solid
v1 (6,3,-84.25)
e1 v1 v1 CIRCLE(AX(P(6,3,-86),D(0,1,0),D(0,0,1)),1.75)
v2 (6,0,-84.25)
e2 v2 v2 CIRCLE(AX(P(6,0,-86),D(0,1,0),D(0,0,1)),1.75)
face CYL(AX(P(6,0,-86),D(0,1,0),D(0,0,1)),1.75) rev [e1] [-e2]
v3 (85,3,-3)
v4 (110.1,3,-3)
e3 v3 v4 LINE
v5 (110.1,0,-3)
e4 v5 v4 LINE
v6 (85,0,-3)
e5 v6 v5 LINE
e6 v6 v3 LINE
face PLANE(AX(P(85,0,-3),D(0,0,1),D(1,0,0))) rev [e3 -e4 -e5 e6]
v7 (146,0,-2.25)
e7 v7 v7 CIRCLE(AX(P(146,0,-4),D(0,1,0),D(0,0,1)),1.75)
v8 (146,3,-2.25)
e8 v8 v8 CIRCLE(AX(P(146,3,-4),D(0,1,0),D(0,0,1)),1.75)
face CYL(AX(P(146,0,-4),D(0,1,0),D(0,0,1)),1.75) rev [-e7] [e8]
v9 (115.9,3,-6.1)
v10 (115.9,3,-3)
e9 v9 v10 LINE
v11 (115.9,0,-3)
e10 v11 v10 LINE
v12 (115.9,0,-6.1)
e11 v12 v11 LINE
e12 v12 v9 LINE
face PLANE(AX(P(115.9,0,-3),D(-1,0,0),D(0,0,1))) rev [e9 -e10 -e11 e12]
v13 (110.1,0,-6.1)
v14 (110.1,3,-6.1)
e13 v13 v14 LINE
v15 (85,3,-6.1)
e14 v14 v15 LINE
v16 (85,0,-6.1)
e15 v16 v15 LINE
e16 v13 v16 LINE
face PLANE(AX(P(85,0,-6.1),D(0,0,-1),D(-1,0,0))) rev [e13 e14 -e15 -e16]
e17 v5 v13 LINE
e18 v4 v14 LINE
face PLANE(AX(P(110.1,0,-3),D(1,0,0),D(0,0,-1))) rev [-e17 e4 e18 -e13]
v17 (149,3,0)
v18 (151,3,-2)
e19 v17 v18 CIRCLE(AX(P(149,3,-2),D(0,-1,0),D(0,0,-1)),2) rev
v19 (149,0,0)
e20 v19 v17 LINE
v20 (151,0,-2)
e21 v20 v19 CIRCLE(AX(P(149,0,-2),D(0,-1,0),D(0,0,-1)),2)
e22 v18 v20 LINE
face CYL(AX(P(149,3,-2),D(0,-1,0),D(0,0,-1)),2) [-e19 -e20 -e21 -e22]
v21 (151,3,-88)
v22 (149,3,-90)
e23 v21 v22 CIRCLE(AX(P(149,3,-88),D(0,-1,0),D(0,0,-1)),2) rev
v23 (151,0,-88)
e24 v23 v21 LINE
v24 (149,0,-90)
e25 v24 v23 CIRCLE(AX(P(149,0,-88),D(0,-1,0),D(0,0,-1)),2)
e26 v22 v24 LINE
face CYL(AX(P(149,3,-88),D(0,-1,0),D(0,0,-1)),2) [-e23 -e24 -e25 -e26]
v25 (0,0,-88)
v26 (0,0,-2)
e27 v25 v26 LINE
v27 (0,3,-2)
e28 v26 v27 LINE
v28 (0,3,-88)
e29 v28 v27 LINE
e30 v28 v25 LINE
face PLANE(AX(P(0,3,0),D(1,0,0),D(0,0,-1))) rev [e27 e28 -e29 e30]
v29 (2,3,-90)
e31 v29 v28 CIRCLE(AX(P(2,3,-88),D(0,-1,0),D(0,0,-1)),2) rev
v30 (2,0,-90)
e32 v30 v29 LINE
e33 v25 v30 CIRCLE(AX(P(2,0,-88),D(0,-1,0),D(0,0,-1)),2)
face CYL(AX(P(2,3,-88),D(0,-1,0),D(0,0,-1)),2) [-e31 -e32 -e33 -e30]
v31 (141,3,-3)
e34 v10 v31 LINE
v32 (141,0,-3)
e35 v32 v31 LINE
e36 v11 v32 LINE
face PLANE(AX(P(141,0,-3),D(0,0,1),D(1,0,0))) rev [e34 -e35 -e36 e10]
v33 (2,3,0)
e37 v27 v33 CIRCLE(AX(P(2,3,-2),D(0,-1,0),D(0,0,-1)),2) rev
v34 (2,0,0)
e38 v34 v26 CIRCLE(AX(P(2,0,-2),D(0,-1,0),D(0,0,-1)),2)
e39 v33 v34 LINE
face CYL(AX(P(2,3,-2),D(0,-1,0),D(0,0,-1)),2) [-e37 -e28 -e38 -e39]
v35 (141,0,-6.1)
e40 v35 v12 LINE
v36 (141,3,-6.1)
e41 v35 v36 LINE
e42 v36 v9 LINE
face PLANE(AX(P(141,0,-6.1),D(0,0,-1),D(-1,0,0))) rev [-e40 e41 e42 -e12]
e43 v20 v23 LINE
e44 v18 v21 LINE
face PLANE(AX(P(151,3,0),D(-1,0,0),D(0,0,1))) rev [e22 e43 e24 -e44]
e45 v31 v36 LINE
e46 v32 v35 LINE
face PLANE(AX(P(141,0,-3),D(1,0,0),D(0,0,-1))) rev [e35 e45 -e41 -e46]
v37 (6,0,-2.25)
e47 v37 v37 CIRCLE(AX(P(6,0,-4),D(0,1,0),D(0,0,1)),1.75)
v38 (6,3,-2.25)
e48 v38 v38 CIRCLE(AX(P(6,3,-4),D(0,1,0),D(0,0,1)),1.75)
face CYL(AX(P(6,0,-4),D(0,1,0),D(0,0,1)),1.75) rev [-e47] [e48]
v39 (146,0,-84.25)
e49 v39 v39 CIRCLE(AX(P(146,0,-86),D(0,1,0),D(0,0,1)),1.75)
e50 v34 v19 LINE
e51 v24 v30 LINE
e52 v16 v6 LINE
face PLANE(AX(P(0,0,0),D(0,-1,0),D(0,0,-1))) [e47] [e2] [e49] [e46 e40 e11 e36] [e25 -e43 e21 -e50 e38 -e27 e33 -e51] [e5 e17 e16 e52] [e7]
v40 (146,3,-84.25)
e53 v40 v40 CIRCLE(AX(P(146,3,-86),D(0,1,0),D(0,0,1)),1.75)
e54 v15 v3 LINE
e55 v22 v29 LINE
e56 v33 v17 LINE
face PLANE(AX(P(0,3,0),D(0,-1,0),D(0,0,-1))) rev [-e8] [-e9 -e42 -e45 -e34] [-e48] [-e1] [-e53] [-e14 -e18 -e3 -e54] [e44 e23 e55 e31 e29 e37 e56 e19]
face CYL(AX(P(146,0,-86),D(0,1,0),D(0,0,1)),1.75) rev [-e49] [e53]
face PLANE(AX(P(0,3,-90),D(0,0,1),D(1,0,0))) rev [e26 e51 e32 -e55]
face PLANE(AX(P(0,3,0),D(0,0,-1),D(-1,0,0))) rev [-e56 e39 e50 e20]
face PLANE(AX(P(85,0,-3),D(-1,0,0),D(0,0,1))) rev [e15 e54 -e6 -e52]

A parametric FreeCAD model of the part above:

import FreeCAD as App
import Part
import Sketcher

V = App.Vector


def edges_at(feature, points):
    """Names of the edges that pass closest to the given points."""
    edges = feature.Shape.Edges
    near = lambda p: min(range(len(edges)), key=lambda i: edges[i].distToShape(Part.Vertex(*p))[0])
    return sorted({f"Edge{near(p) + 1}" for p in points})


def add_polygon(sketch, points):
    """Adds a closed chain of lines whose ends are joined by coincident constraints."""
    first, n = sketch.GeometryCount, len(points)
    for a, b in zip(points, points[1:] + points[:1]):
        sketch.addGeometry(Part.LineSegment(App.Vector(*a, 0), App.Vector(*b, 0)), False)
    for i in range(n):
        sketch.addConstraint(Sketcher.Constraint("Coincident", first + i, 2, first + (i + 1) % n, 1))

doc = App.newDocument("Part")
body = doc.addObject("PartDesign::Body", "Body")

sketch1 = body.newObject("Sketcher::SketchObject", "Sketch")
sketch1.AttachmentSupport = (doc.getObject("XZ_Plane"), [""])
sketch1.MapMode = "FlatFace"
add_polygon(sketch1, [(0, -90), (0, 0), (151, 0), (151, -90)])
sketch1.addConstraint(Sketcher.Constraint("Vertical", 0))
sketch1.addConstraint(Sketcher.Constraint("Horizontal", 1))
sketch1.addConstraint(Sketcher.Constraint("Vertical", 2))
sketch1.addConstraint(Sketcher.Constraint("Horizontal", 3))
sketch1.addConstraint(Sketcher.Constraint("Coincident", 0, 2, -1, 1))
sketch1.addConstraint(Sketcher.Constraint("DistanceX", 1, 1, 1, 2, 151.0))
sketch1.addConstraint(Sketcher.Constraint("DistanceY", 0, 1, 0, 2, 90.0))
pad1 = body.newObject("PartDesign::Pad", "Pad")
pad1.Profile = sketch1
pad1.Length = 3
pad1.Reversed = True

sketch2 = body.newObject("Sketcher::SketchObject", "Sketch001")
sketch2.AttachmentSupport = (doc.getObject("XZ_Plane"), [""])
sketch2.MapMode = "FlatFace"
sketch2.AttachmentOffset = App.Placement(V(0, 0, -3), App.Rotation())
sketch2.addGeometry(Part.Circle(V(146, -86, 0), V(0, 0, 1), 1.75), False)
sketch2.addGeometry(Part.Circle(V(146, -4, 0), V(0, 0, 1), 1.75), False)
sketch2.addGeometry(Part.Circle(V(6, -86, 0), V(0, 0, 1), 1.75), False)
sketch2.addGeometry(Part.Circle(V(6, -4, 0), V(0, 0, 1), 1.75), False)
sketch2.addConstraint(Sketcher.Constraint("Equal", 0, 1))
sketch2.addConstraint(Sketcher.Constraint("Equal", 1, 2))
sketch2.addConstraint(Sketcher.Constraint("Equal", 2, 3))
sketch2.addConstraint(Sketcher.Constraint("Horizontal", 0, 3, 2, 3))
sketch2.addConstraint(Sketcher.Constraint("Horizontal", 1, 3, 3, 3))
sketch2.addConstraint(Sketcher.Constraint("Vertical", 0, 3, 1, 3))
sketch2.addConstraint(Sketcher.Constraint("Vertical", 2, 3, 3, 3))
sketch2.addConstraint(Sketcher.Constraint("Diameter", 0, 3.5))
sketch2.addConstraint(Sketcher.Constraint("DistanceX", -1, 1, 0, 3, 146.0))
sketch2.addConstraint(Sketcher.Constraint("DistanceY", 0, 3, -1, 1, 86.0))
sketch2.addConstraint(Sketcher.Constraint("DistanceY", 1, 3, -1, 1, 4.0))
sketch2.addConstraint(Sketcher.Constraint("DistanceX", -1, 1, 2, 3, 6.0))
pocket1 = body.newObject("PartDesign::Pocket", "Pocket")
pocket1.Profile = sketch2
pocket1.Type = "ThroughAll"
pocket1.Reversed = True
doc.recompute()

fillet = body.newObject("PartDesign::Fillet", "Fillet")
fillet.Base = (pocket1, edges_at(pocket1, [
    (0, 1.5, -90),
    (151, 1.5, -90),
    (151, 1.5, 0),
    (0, 1.5, 0),
]))
fillet.Radius = 2

sketch3 = body.newObject("Sketcher::SketchObject", "Sketch002")
sketch3.AttachmentSupport = (doc.getObject("XZ_Plane"), [""])
sketch3.MapMode = "FlatFace"
sketch3.AttachmentOffset = App.Placement(V(0, 0, -3), App.Rotation())
add_polygon(sketch3, [(85, -6.1), (85, -3), (110.1, -3), (110.1, -6.1)])
add_polygon(sketch3, [(115.9, -6.1), (115.9, -3), (141, -3), (141, -6.1)])
sketch3.addConstraint(Sketcher.Constraint("Vertical", 0))
sketch3.addConstraint(Sketcher.Constraint("Horizontal", 1))
sketch3.addConstraint(Sketcher.Constraint("Vertical", 2))
sketch3.addConstraint(Sketcher.Constraint("Horizontal", 3))
sketch3.addConstraint(Sketcher.Constraint("Vertical", 4))
sketch3.addConstraint(Sketcher.Constraint("Horizontal", 5))
sketch3.addConstraint(Sketcher.Constraint("Vertical", 6))
sketch3.addConstraint(Sketcher.Constraint("Horizontal", 7))
sketch3.addConstraint(Sketcher.Constraint("Horizontal", 1, 2, 4, 2))
sketch3.addConstraint(Sketcher.Constraint("Horizontal", 3, 2, 6, 2))
sketch3.addConstraint(Sketcher.Constraint("Equal", 3, 5))
sketch3.addConstraint(Sketcher.Constraint("DistanceX", 1, 1, 1, 2, 25.1))
sketch3.addConstraint(Sketcher.Constraint("DistanceY", 0, 1, 0, 2, 3.1))
sketch3.addConstraint(Sketcher.Constraint("DistanceX", -1, 1, 0, 2, 85.0))
sketch3.addConstraint(Sketcher.Constraint("DistanceY", 0, 2, -1, 1, 3.0))
sketch3.addConstraint(Sketcher.Constraint("DistanceX", -1, 1, 5, 2, 141.0))
pocket2 = body.newObject("PartDesign::Pocket", "Pocket001")
pocket2.Profile = sketch3
pocket2.Type = "ThroughAll"
pocket2.Reversed = True

doc.recompute()
